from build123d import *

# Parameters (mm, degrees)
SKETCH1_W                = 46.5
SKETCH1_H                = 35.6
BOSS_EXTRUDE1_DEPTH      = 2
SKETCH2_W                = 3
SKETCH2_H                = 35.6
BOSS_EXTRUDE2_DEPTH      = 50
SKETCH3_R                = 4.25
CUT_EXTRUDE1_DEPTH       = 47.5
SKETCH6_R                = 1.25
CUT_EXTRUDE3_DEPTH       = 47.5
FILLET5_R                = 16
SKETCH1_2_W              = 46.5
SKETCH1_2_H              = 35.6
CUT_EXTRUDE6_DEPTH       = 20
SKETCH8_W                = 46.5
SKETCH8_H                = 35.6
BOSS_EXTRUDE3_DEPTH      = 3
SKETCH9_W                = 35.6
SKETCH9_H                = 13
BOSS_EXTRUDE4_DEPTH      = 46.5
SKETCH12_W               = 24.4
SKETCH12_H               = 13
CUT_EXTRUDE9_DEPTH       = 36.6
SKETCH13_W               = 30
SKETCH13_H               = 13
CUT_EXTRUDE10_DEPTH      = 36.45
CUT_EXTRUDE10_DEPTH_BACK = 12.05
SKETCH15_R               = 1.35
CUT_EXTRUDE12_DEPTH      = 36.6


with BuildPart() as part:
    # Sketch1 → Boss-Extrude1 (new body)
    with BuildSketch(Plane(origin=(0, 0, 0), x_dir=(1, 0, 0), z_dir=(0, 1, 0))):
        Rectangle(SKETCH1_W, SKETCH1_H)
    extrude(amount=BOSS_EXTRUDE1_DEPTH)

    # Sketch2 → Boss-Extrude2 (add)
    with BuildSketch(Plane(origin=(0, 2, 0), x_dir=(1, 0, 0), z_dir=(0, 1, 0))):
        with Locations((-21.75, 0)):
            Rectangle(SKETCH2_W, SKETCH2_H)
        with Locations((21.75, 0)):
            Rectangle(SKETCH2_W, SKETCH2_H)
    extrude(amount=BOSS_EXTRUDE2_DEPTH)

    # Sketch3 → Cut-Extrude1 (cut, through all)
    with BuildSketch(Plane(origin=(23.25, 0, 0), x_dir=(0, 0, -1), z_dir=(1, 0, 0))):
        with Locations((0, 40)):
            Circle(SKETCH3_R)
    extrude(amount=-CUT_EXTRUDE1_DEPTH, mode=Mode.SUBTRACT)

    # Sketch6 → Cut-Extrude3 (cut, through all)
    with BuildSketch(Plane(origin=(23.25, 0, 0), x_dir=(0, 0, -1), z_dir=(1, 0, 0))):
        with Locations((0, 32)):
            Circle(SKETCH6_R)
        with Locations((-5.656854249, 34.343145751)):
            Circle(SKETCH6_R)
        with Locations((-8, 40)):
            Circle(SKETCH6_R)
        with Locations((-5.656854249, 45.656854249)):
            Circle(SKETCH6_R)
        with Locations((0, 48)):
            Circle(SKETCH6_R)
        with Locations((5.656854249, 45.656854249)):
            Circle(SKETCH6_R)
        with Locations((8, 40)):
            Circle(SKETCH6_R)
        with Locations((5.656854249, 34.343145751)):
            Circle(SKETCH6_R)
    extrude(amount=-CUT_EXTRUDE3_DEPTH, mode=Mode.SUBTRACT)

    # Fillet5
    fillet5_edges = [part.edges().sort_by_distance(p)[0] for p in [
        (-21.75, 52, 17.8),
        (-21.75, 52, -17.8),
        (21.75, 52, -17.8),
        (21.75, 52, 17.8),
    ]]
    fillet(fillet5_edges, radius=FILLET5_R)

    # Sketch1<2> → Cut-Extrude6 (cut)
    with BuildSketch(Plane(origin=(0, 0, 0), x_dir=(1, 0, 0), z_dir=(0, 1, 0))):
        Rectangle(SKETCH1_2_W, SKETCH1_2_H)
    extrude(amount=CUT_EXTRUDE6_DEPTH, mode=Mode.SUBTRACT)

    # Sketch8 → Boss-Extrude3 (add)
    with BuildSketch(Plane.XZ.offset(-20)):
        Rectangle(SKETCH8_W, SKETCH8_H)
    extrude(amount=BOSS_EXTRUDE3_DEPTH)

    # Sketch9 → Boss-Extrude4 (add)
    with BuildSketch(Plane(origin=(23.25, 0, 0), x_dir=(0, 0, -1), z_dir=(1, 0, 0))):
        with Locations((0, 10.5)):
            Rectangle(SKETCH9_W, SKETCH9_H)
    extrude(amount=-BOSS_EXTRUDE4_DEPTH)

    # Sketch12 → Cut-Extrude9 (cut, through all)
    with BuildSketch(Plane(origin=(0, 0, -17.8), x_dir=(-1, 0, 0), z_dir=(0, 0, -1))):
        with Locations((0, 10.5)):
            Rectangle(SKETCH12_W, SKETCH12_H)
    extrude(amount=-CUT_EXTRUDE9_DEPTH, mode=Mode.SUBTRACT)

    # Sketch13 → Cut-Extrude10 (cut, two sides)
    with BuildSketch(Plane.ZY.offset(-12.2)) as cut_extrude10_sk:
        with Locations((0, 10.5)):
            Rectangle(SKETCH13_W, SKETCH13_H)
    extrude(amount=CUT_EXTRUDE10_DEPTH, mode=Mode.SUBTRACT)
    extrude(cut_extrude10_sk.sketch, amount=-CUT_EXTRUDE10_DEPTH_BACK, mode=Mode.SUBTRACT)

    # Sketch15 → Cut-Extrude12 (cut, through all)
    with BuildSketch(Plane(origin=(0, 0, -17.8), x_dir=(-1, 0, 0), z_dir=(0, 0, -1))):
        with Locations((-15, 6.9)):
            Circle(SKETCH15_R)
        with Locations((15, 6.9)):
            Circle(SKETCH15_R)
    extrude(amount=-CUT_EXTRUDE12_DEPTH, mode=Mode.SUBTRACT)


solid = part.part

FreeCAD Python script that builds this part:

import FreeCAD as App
import Part
import Sketcher
from FreeCAD import Vector


def edges_at(feature, points):
    """Names of the edges that pass closest to the given points."""
    edges = feature.Shape.Edges
    near = lambda p: min(range(len(edges)), key=lambda i: edges[i].distToShape(Part.Vertex(*p))[0])
    return sorted({f"Edge{near(p) + 1}" for p in points})


def add_polygon(sketch, points):
    """Adds a closed chain of lines whose ends are joined by coincident constraints."""
    first, n = sketch.GeometryCount, len(points)
    for a, b in zip(points, points[1:] + points[:1]):
        sketch.addGeometry(Part.LineSegment(App.Vector(*a, 0), App.Vector(*b, 0)), False)
    for i in range(n):
        sketch.addConstraint(Sketcher.Constraint("Coincident", first + i, 2, first + (i + 1) % n, 1))

doc = App.newDocument("Part")
body = doc.addObject("PartDesign::Body", "Body")
body.AllowCompound = True

# Sketch on XZ plane
sketch1 = doc.addObject("Sketcher::SketchObject", "Sketch")
body.addObject(sketch1)
sketch1.AttachmentSupport = (doc.XZ_Plane, [""])
sketch1.MapMode = "FlatFace"
add_polygon(sketch1, [(-23, -18), (-23, 18), (23, 18), (23, -18)])  # lines 0-3
sketch1.addConstraint([
    Sketcher.Constraint("Vertical", 0),
    Sketcher.Constraint("Horizontal", 1),
    Sketcher.Constraint("Vertical", 2),
    Sketcher.Constraint("Horizontal", 3),
    Sketcher.Constraint("Symmetric", 0, 2, 2, 2, -1, 1),
    Sketcher.Constraint("DistanceX", 1, 1, 1, 2, 46.5),
    Sketcher.Constraint("DistanceY", 0, 1, 0, 2, 35.6),
])
pad1 = doc.addObject("PartDesign::Pad", "Pad")
body.addObject(pad1)
pad1.Profile = sketch1
pad1.Length = 2
pad1.Reversed = True

# Sketch on XZ plane
sketch2 = doc.addObject("Sketcher::SketchObject", "Sketch001")
body.addObject(sketch2)
sketch2.AttachmentSupport = (doc.XZ_Plane, [""])
sketch2.MapMode = "FlatFace"
sketch2.AttachmentOffset = App.Placement(Vector(0, 0, -2), App.Rotation())
add_polygon(sketch2, [(-23.2, -17.8), (-23.2, 17.8), (-20.2, 17.8), (-20.2, -17.8)])  # lines 0-3
add_polygon(sketch2, [(20.2, -17.8), (20.2, 17.8), (23.2, 17.8), (23.2, -17.8)])  # lines 4-7
sketch2.addConstraint([
    Sketcher.Constraint("Vertical", 0),
    Sketcher.Constraint("Horizontal", 1),
    Sketcher.Constraint("Vertical", 2),
    Sketcher.Constraint("Horizontal", 3),
    Sketcher.Constraint("Vertical", 4),
    Sketcher.Constraint("Horizontal", 5),
    Sketcher.Constraint("Vertical", 6),
    Sketcher.Constraint("Horizontal", 7),
    Sketcher.Constraint("Symmetric", 2, 2, 4, 2, -1, 1),
    Sketcher.Constraint("Symmetric", 0, 2, 6, 2, -1, 1),
    Sketcher.Constraint("Horizontal", 1, 2, 4, 2),
    Sketcher.Constraint("DistanceX", 1, 1, 1, 2, 3.0),
    Sketcher.Constraint("DistanceY", 0, 1, 0, 2, 35.6),
    Sketcher.Constraint("DistanceX", 1, 2, 4, 2, 40.5),
])
pad2 = doc.addObject("PartDesign::Pad", "Pad001")
body.addObject(pad2)
pad2.Profile = sketch2
pad2.Length = 50
pad2.Reversed = True

# Sketch on YZ plane
sketch3 = doc.addObject("Sketcher::SketchObject", "Sketch002")
body.addObject(sketch3)
sketch3.AttachmentSupport = (doc.YZ_Plane, [""])
sketch3.MapMode = "FlatFace"
sketch3.AttachmentOffset = App.Placement(Vector(0, 0, 23.25), App.Rotation())
sketch3.addGeometry(Part.Circle(Vector(40, 0, 0), Vector(0, 0, 1), 4.2), False)
sketch3.addConstraint([
    Sketcher.Constraint("PointOnObject", 0, 3, -1),
    Sketcher.Constraint("Diameter", 0, 8.5),
    Sketcher.Constraint("DistanceX", -1, 1, 0, 3, 40.0),
])
pocket1 = doc.addObject("PartDesign::Pocket", "Pocket")
body.addObject(pocket1)
pocket1.Profile = sketch3
pocket1.Type = "ThroughAll"

# Sketch on YZ plane
sketch4 = doc.addObject("Sketcher::SketchObject", "Sketch003")
body.addObject(sketch4)
sketch4.AttachmentSupport = (doc.YZ_Plane, [""])
sketch4.MapMode = "FlatFace"
sketch4.AttachmentOffset = App.Placement(Vector(0, 0, 23.25), App.Rotation())
sketch4.addGeometry([
    Part.Circle(Vector(32, 0, 0), Vector(0, 0, 1), 1.2),  # 0
    Part.Circle(Vector(34.3, 5.7, 0), Vector(0, 0, 1), 1.2),  # 1
    Part.Circle(Vector(40, 8, 0), Vector(0, 0, 1), 1.2),  # 2
    Part.Circle(Vector(45.7, 5.7, 0), Vector(0, 0, 1), 1.2),  # 3
    Part.Circle(Vector(48, 0, 0), Vector(0, 0, 1), 1.2),  # 4
    Part.Circle(Vector(45.7, -5.7, 0), Vector(0, 0, 1), 1.2),  # 5
    Part.Circle(Vector(40, -8, 0), Vector(0, 0, 1), 1.2),  # 6
    Part.Circle(Vector(34.3, -5.7, 0), Vector(0, 0, 1), 1.2),  # 7
], False)
sketch4.addConstraint([
    Sketcher.Constraint("Equal", 0, 1),
    Sketcher.Constraint("Equal", 1, 2),
    Sketcher.Constraint("Equal", 2, 3),
    Sketcher.Constraint("Equal", 3, 4),
    Sketcher.Constraint("Equal", 4, 5),
    Sketcher.Constraint("Equal", 5, 6),
    Sketcher.Constraint("Equal", 6, 7),
    Sketcher.Constraint("Symmetric", 3, 3, 5, 3, -1),
    Sketcher.Constraint("Symmetric", 2, 3, 6, 3, -1),
    Sketcher.Constraint("Symmetric", 1, 3, 7, 3, -1),
    Sketcher.Constraint("PointOnObject", 0, 3, -1),
    Sketcher.Constraint("PointOnObject", 4, 3, -1),
    Sketcher.Constraint("Horizontal", 1, 3, 3, 3),
    Sketcher.Constraint("Diameter", 0, 2.5),
    Sketcher.Constraint("DistanceX", -1, 1, 0, 3, 32.0),
    Sketcher.Constraint("DistanceX", -1, 1, 2, 3, 40.0),
    Sketcher.Constraint("DistanceY", -1, 1, 2, 3, 8.0),
    Sketcher.Constraint("DistanceX", -1, 1, 4, 3, 48.0),
    Sketcher.Constraint("DistanceX", 1, 3, 3, 3, 11.313708),
    Sketcher.Constraint("DistanceY", 5, 3, 3, 3, 11.313708),
    Sketcher.Constraint("DistanceX", -1, 1, 1, 3, 34.343146),
])
pocket2 = doc.addObject("PartDesign::Pocket", "Pocket001")
body.addObject(pocket2)
pocket2.Profile = sketch4
pocket2.Type = "ThroughAll"
doc.recompute()

fillet = doc.addObject("PartDesign::Fillet", "Fillet")
body.addObject(fillet)
fillet.Base = (pocket2, edges_at(pocket2, [
    (-21.75, 52, 17.8),
    (-21.75, 52, -17.8),
    (21.75, 52, -17.8),
    (21.75, 52, 17.8),
]))
fillet.Radius = 16

# Sketch on XZ plane
sketch5 = doc.addObject("Sketcher::SketchObject", "Sketch004")
body.addObject(sketch5)
sketch5.AttachmentSupport = (doc.XZ_Plane, [""])
sketch5.MapMode = "FlatFace"
add_polygon(sketch5, [(-23, -18), (-23, 18), (23, 18), (23, -18)])  # lines 0-3
sketch5.addConstraint([
    Sketcher.Constraint("Vertical", 0),
    Sketcher.Constraint("Horizontal", 1),
    Sketcher.Constraint("Vertical", 2),
    Sketcher.Constraint("Horizontal", 3),
    Sketcher.Constraint("Symmetric", 0, 2, 2, 2, -1, 1),
    Sketcher.Constraint("DistanceX", 1, 1, 1, 2, 46.5),
    Sketcher.Constraint("DistanceY", 0, 1, 0, 2, 35.6),
])
pocket3 = doc.addObject("PartDesign::Pocket", "Pocket002")
body.addObject(pocket3)
pocket3.Profile = sketch5
pocket3.Length = 20

# Sketch on XZ plane
sketch6 = doc.addObject("Sketcher::SketchObject", "Sketch005")
body.addObject(sketch6)
sketch6.AttachmentSupport = (doc.XZ_Plane, [""])
sketch6.MapMode = "FlatFace"
sketch6.AttachmentOffset = App.Placement(Vector(0, 0, -20), App.Rotation())
add_polygon(sketch6, [(-23, 18), (-23, -18), (23, -18), (23, 18)])  # lines 0-3
sketch6.addConstraint([
    Sketcher.Constraint("Vertical", 0),
    Sketcher.Constraint("Horizontal", 1),
    Sketcher.Constraint("Vertical", 2),
    Sketcher.Constraint("Horizontal", 3),
    Sketcher.Constraint("Symmetric", 0, 2, 2, 2, -1, 1),
    Sketcher.Constraint("DistanceX", 1, 1, 1, 2, 46.5),
    Sketcher.Constraint("DistanceY", 0, 2, 0, 1, 35.6),
])
pad3 = doc.addObject("PartDesign::Pad", "Pad002")
body.addObject(pad3)
pad3.Profile = sketch6
pad3.Length = 3

# Sketch on YZ plane
sketch7 = doc.addObject("Sketcher::SketchObject", "Sketch006")
body.addObject(sketch7)
sketch7.AttachmentSupport = (doc.YZ_Plane, [""])
sketch7.MapMode = "FlatFace"
sketch7.AttachmentOffset = App.Placement(Vector(0, 0, 23.25), App.Rotation())
add_polygon(sketch7, [(17, 18), (4, 18), (4, -18), (17, -18)])  # lines 0-3
sketch7.addConstraint([
    Sketcher.Constraint("Horizontal", 0),
    Sketcher.Constraint("Vertical", 1),
    Sketcher.Constraint("Horizontal", 2),
    Sketcher.Constraint("Vertical", 3),
    Sketcher.Constraint("DistanceX", 0, 2, 0, 1, 13.0),
    Sketcher.Constraint("DistanceY", 1, 2, 1, 1, 35.6),
    Sketcher.Constraint("DistanceX", -1, 1, 0, 2, 4.0),
    Sketcher.Constraint("DistanceY", -1, 1, 0, 2, 17.8),
])
pad4 = doc.addObject("PartDesign::Pad", "Pad003")
body.addObject(pad4)
pad4.Profile = sketch7
pad4.Length = 46.5
pad4.Reversed = True

# Sketch on XY plane
sketch8 = doc.addObject("Sketcher::SketchObject", "Sketch007")
body.addObject(sketch8)
sketch8.AttachmentSupport = (doc.XY_Plane, [""])
sketch8.MapMode = "FlatFace"
sketch8.AttachmentOffset = App.Placement(Vector(0, 0, -17.8), App.Rotation())
add_polygon(sketch8, [(12, 17), (12, 4), (-12, 4), (-12, 17)])  # lines 0-3
sketch8.addConstraint([
    Sketcher.Constraint("Vertical", 0),
    Sketcher.Constraint("Horizontal", 1),
    Sketcher.Constraint("Vertical", 2),
    Sketcher.Constraint("Horizontal", 3),
    Sketcher.Constraint("DistanceY", 0, 2, 0, 1, 13.0),
    Sketcher.Constraint("DistanceX", 1, 2, 1, 1, 24.4),
    Sketcher.Constraint("DistanceY", -1, 1, 0, 2, 4.0),
    Sketcher.Constraint("DistanceX", -1, 1, 0, 2, 12.2),
])
pocket4 = doc.addObject("PartDesign::Pocket", "Pocket003")
body.addObject(pocket4)
pocket4.Profile = sketch8
pocket4.Type = "ThroughAll"
pocket4.Reversed = True

# Sketch on YZ plane
sketch9 = doc.addObject("Sketcher::SketchObject", "Sketch008")
body.addObject(sketch9)
sketch9.AttachmentSupport = (doc.YZ_Plane, [""])
sketch9.MapMode = "FlatFace"
sketch9.AttachmentOffset = App.Placement(Vector(0, 0, 12.2), App.Rotation())
add_polygon(sketch9, [(17, -15), (4, -15), (4, 15), (17, 15)])  # lines 0-3
sketch9.addConstraint([
    Sketcher.Constraint("Horizontal", 0),
    Sketcher.Constraint("Vertical", 1),
    Sketcher.Constraint("Horizontal", 2),
    Sketcher.Constraint("Vertical", 3),
    Sketcher.Constraint("DistanceX", 0, 2, 0, 1, 13.0),
    Sketcher.Constraint("DistanceY", 1, 1, 1, 2, 30.0),
    Sketcher.Constraint("DistanceX", -1, 1, 0, 2, 4.0),
    Sketcher.Constraint("DistanceY", 0, 2, -1, 1, 15.0),
])
pocket5 = doc.addObject("PartDesign::Pocket", "Pocket004")
body.addObject(pocket5)
pocket5.Profile = sketch9
pocket5.Type = "ThroughAll"
pocket5.Midplane = True

# Sketch on XY plane
sketch10 = doc.addObject("Sketcher::SketchObject", "Sketch009")
body.addObject(sketch10)
sketch10.AttachmentSupport = (doc.XY_Plane, [""])
sketch10.MapMode = "FlatFace"
sketch10.AttachmentOffset = App.Placement(Vector(0, 0, -17.8), App.Rotation())
sketch10.addGeometry([
    Part.Circle(Vector(15, 6.9, 0), Vector(0, 0, 1), 1.4),
    Part.Circle(Vector(-15, 6.9, 0), Vector(0, 0, 1), 1.4),
], False)
sketch10.addConstraint([
    Sketcher.Constraint("Equal", 0, 1),
    Sketcher.Constraint("Symmetric", 0, 3, 1, 3, -2),
    Sketcher.Constraint("Diameter", 0, 2.7),
    Sketcher.Constraint("DistanceX", -1, 1, 0, 3, 15.0),
    Sketcher.Constraint("DistanceY", -1, 1, 0, 3, 6.9),
])
pocket6 = doc.addObject("PartDesign::Pocket", "Pocket005")
body.addObject(pocket6)
pocket6.Profile = sketch10
pocket6.Type = "ThroughAll"
pocket6.Reversed = True

doc.recompute()
